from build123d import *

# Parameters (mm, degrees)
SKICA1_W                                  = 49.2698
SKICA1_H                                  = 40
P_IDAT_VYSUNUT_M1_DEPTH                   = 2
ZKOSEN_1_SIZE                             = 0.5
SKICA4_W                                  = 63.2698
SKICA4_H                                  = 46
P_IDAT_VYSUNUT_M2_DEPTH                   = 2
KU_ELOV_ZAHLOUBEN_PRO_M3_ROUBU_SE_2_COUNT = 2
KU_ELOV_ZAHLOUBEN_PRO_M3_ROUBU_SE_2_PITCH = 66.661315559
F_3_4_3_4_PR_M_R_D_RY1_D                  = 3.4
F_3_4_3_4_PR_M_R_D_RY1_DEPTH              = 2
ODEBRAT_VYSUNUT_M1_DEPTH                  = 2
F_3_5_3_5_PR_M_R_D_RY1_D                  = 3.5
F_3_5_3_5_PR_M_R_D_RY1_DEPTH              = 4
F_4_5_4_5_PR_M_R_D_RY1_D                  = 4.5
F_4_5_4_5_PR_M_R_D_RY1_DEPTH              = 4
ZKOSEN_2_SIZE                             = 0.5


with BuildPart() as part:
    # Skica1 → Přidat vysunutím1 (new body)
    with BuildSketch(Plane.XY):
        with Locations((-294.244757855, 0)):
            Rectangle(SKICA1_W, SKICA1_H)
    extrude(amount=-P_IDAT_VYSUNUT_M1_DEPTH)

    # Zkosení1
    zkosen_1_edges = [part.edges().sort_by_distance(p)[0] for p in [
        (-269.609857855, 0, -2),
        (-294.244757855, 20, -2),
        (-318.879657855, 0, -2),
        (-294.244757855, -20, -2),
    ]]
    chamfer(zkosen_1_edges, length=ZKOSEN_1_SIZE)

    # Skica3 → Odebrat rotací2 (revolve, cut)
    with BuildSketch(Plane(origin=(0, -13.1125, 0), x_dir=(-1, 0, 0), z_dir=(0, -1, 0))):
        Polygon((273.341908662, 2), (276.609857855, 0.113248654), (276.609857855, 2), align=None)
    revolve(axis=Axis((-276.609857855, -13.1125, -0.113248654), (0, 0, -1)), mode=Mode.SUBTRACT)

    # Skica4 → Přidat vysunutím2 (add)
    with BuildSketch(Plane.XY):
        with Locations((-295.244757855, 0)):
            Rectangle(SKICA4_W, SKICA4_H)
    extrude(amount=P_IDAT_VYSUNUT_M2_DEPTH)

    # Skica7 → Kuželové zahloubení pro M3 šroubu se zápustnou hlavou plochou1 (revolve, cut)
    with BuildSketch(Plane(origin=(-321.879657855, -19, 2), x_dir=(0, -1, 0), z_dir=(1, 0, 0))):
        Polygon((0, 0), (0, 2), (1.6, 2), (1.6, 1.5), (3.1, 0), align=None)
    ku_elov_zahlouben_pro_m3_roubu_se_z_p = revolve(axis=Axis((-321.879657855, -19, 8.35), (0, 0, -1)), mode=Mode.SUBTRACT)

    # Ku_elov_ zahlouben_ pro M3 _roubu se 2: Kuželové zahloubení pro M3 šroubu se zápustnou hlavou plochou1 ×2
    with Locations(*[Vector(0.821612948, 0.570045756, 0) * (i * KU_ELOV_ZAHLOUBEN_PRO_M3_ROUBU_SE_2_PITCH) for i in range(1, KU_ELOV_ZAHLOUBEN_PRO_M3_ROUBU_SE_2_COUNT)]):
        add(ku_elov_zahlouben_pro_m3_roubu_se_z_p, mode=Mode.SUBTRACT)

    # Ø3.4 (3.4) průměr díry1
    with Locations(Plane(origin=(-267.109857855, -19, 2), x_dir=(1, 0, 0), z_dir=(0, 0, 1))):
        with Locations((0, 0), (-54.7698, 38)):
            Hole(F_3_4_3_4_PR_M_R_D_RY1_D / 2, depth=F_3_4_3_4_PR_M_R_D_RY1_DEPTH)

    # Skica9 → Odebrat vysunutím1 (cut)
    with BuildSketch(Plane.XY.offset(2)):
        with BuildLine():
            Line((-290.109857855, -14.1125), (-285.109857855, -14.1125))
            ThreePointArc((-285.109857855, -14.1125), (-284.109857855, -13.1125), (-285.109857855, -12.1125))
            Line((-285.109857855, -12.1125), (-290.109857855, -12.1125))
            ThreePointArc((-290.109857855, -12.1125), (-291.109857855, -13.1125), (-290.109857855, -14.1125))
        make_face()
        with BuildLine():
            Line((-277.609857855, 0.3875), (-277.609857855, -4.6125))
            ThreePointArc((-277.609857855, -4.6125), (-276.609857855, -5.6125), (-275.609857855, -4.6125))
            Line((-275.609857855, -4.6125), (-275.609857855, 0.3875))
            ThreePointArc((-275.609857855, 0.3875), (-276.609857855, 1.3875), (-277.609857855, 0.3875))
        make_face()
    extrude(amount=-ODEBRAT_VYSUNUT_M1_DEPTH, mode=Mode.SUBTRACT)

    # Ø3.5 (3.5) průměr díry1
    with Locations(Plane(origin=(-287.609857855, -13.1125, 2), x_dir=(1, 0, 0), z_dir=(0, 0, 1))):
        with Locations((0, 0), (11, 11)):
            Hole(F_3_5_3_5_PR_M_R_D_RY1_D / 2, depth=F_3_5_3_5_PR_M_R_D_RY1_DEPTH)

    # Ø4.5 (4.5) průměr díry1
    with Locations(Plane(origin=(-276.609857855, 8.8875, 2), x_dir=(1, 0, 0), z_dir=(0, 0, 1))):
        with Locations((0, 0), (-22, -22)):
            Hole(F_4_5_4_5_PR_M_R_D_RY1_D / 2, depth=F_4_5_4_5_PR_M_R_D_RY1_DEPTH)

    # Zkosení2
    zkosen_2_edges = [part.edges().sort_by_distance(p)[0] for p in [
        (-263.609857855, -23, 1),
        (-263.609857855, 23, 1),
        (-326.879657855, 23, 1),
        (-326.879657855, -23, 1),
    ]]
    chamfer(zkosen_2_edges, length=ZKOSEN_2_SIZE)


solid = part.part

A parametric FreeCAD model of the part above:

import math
import FreeCAD as App
import Part
import Sketcher

V = App.Vector
Q = App.Units.Quantity


def edges_at(feature, points):
    """Names of the edges that pass closest to the given points."""
    edges = feature.Shape.Edges
    near = lambda p: min(range(len(edges)), key=lambda i: edges[i].distToShape(Part.Vertex(*p))[0])
    return sorted({f"Edge{near(p) + 1}" for p in points})

doc = App.newDocument("Part")
params = doc.addObject("Spreadsheet::Sheet", "Params")
for row, (alias, value) in enumerate([
    ("sketch1_height", "40 mm"),
    ("pad1_length", "2 mm"),
    ("chamfer_size", "0.5 mm"),
    ("groove_angle", "360 deg"),
    ("sketch3_height", "46 mm"),
    ("pad2_length", "2 mm"),
    ("sketch4_height", "2 mm"),
    ("sketch4_width", "3.1 mm"),
    ("sketch4_width2", "1.6 mm"),
    ("groove2_angle", "360 deg"),
    ("linearpattern_pitch", "66.661316 mm"),
    ("sketch5_diameter", "3.4 mm"),
    ("hole_diameter", "3.4 mm"),
    ("hole_depth", "2 mm"),
    ("sketch6_radius", "1 mm"),
    ("sketch6_width", "5 mm"),
    ("pocket1_length", "2 mm"),
    ("sketch7_diameter", "3.5 mm"),
    ("hole2_diameter", "3.5 mm"),
    ("hole2_depth", "4 mm"),
    ("sketch8_diameter", "4.5 mm"),
    ("hole3_diameter", "4.5 mm"),
    ("hole3_depth", "4 mm"),
    ("chamfer2_size", "0.5 mm"),
], start=1):
    params.set(f"A{row}", alias)
    params.set(f"B{row}", "=" + value)
    params.setAlias(f"B{row}", alias)

body = doc.addObject("PartDesign::Body", "Body")

# Sketch on XY plane
sketch1 = body.newObject("Sketcher::SketchObject", "Sketch")
sketch1.AttachmentSupport = (doc.getObject("XY_Plane"), [""])
sketch1.MapMode = "FlatFace"
sketch1.addGeometry([
    Part.LineSegment(V(-318.879658, 20, 0), V(-318.879658, -20, 0)),
    Part.LineSegment(V(-318.879658, -20, 0), V(-269.609858, -20, 0)),
    Part.LineSegment(V(-269.609858, -20, 0), V(-269.609858, 20, 0)),
    Part.LineSegment(V(-269.609858, 20, 0), V(-318.879658, 20, 0)),
], False)
sketch1.addConstraint([
    Sketcher.Constraint("Coincident", 0, 2, 1, 1),
    Sketcher.Constraint("Coincident", 1, 2, 2, 1),
    Sketcher.Constraint("Coincident", 2, 2, 3, 1),
    Sketcher.Constraint("Coincident", 3, 2, 0, 1),
    Sketcher.Constraint("Vertical", 0),
    Sketcher.Constraint("Horizontal", 1),
    Sketcher.Constraint("Vertical", 2),
    Sketcher.Constraint("Horizontal", 3),
    Sketcher.Constraint("DistanceY", 0, 2, 0, 1, Q("40 mm")),
    Sketcher.Constraint("DistanceY", 0, 2, -1, 1, Q("20 mm")),
    Sketcher.Constraint("DistanceX", 1, 1, 1, 2, Q("49.2698 mm")),
    Sketcher.Constraint("DistanceX", 0, 2, -1, 1, Q("318.879658 mm")),
])
sketch1.setExpression("Constraints[8]", "Params.sketch1_height")
pad1 = body.newObject("PartDesign::Pad", "Pad")
pad1.Profile = sketch1
pad1.setExpression("Length", "Params.pad1_length")
pad1.Reversed = True
doc.recompute()

chamfer = body.newObject("PartDesign::Chamfer", "Chamfer")
chamfer.Base = (pad1, edges_at(pad1, [
    (-269.61, 0, -2),
    (-294.245, 20, -2),
    (-318.88, 0, -2),
    (-294.245, -20, -2),
]))
chamfer.setExpression("Size", "Params.chamfer_size")

# Sketch on XZ plane
sketch2 = body.newObject("Sketcher::SketchObject", "Sketch001")
sketch2.AttachmentSupport = (doc.getObject("XZ_Plane"), [""])
sketch2.MapMode = "FlatFace"
sketch2.AttachmentOffset = App.Placement(V(0, 0, 13.1125), App.Rotation())
sketch2.addGeometry([
    Part.LineSegment(V(-273.341909, -2, 0), V(-276.609858, -0.113249, 0)),
    Part.LineSegment(V(-276.609858, -0.113249, 0), V(-276.609858, -2, 0)),
    Part.LineSegment(V(-276.609858, -2, 0), V(-273.341909, -2, 0)),
], False)
sketch2.addGeometry(Part.LineSegment(V(-276.609858, -0.113249, 0), V(-276.609858, -2, 0)), True)  # axis
sketch2.addConstraint([
    Sketcher.Constraint("Coincident", 0, 2, 1, 1),
    Sketcher.Constraint("Coincident", 1, 2, 2, 1),
    Sketcher.Constraint("Coincident", 2, 2, 0, 1),
    Sketcher.Constraint("Vertical", 1),
    Sketcher.Constraint("Horizontal", 2),
    Sketcher.Constraint("Vertical", 3),
    Sketcher.Constraint("Coincident", 3, 1, 0, 2),
    Sketcher.Constraint("Horizontal", 2, 2, 3, 2),
    Sketcher.Constraint("Angle", 0, Q("150 deg")),
    Sketcher.Constraint("DistanceY", 1, 2, -1, 1, Q("2 mm")),
    Sketcher.Constraint("DistanceX", 2, 1, 2, 2, Q("3.267949 mm")),
    Sketcher.Constraint("DistanceX", 2, 2, -1, 1, Q("273.341909 mm")),
])
groove = body.newObject("PartDesign::Groove", "Groove")
groove.Profile = sketch2
groove.ReferenceAxis = (sketch2, ["Axis0"])
groove.setExpression("Angle", "Params.groove_angle")

# Sketch on XY plane
sketch3 = body.newObject("Sketcher::SketchObject", "Sketch002")
sketch3.AttachmentSupport = (doc.getObject("XY_Plane"), [""])
sketch3.MapMode = "FlatFace"
sketch3.addGeometry([
    Part.LineSegment(V(-326.879658, 23, 0), V(-326.879658, -23, 0)),
    Part.LineSegment(V(-326.879658, -23, 0), V(-263.609858, -23, 0)),
    Part.LineSegment(V(-263.609858, -23, 0), V(-263.609858, 23, 0)),
    Part.LineSegment(V(-263.609858, 23, 0), V(-326.879658, 23, 0)),
], False)
sketch3.addConstraint([
    Sketcher.Constraint("Coincident", 0, 2, 1, 1),
    Sketcher.Constraint("Coincident", 1, 2, 2, 1),
    Sketcher.Constraint("Coincident", 2, 2, 3, 1),
    Sketcher.Constraint("Coincident", 3, 2, 0, 1),
    Sketcher.Constraint("Vertical", 0),
    Sketcher.Constraint("Horizontal", 1),
    Sketcher.Constraint("Vertical", 2),
    Sketcher.Constraint("Horizontal", 3),
    Sketcher.Constraint("DistanceY", 0, 2, 0, 1, Q("46 mm")),
    Sketcher.Constraint("DistanceY", 0, 2, -1, 1, Q("23 mm")),
    Sketcher.Constraint("DistanceX", 1, 1, 1, 2, Q("63.2698 mm")),
    Sketcher.Constraint("DistanceX", 0, 2, -1, 1, Q("326.879658 mm")),
])
sketch3.setExpression("Constraints[8]", "Params.sketch3_height")
pad2 = body.newObject("PartDesign::Pad", "Pad001")
pad2.Profile = sketch3
pad2.setExpression("Length", "Params.pad2_length")

# Sketch on YZ plane
sketch4 = body.newObject("Sketcher::SketchObject", "Sketch003")
sketch4.AttachmentSupport = (doc.getObject("YZ_Plane"), [""])
sketch4.MapMode = "FlatFace"
sketch4.AttachmentOffset = App.Placement(V(0, 0, -321.879658), App.Rotation())
sketch4.addGeometry([
    Part.LineSegment(V(-19, 0, 0), V(-19, 2, 0)),  # 0
    Part.LineSegment(V(-19, 2, 0), V(-22.1, 2, 0)),  # 1
    Part.LineSegment(V(-22.1, 2, 0), V(-20.6, 0.5, 0)),  # 2
    Part.LineSegment(V(-20.6, 0.5, 0), V(-20.6, 0, 0)),  # 3
    Part.LineSegment(V(-20.6, 0, 0), V(-19, 0, 0)),  # 4
], False)
sketch4.addGeometry(Part.LineSegment(V(-19, 2, 0), V(-19, 0, 0)), True)  # axis
sketch4.addConstraint([
    Sketcher.Constraint("Coincident", 0, 2, 1, 1),
    Sketcher.Constraint("Coincident", 1, 2, 2, 1),
    Sketcher.Constraint("Coincident", 2, 2, 3, 1),
    Sketcher.Constraint("Coincident", 3, 2, 4, 1),
    Sketcher.Constraint("Coincident", 4, 2, 0, 1),
    Sketcher.Constraint("Vertical", 0),
    Sketcher.Constraint("Horizontal", 1),
    Sketcher.Constraint("Vertical", 3),
    Sketcher.Constraint("Horizontal", 4),
    Sketcher.Constraint("Vertical", 5),
    Sketcher.Constraint("Coincident", 5, 1, 0, 2),
    Sketcher.Constraint("PointOnObject", 3, 2, -1),
    Sketcher.Constraint("PointOnObject", 5, 2, -1),
    Sketcher.Constraint("DistanceY", 0, 1, 0, 2, Q("2 mm")),
    Sketcher.Constraint("Angle", 2, Q("-45 deg")),
    Sketcher.Constraint("DistanceX", 1, 2, 1, 1, Q("3.1 mm")),
    Sketcher.Constraint("DistanceX", 4, 1, 4, 2, Q("1.6 mm")),
    Sketcher.Constraint("DistanceX", 0, 2, -1, 1, Q("19 mm")),
])
sketch4.setExpression("Constraints[13]", "Params.sketch4_height")
sketch4.setExpression("Constraints[15]", "Params.sketch4_width")
sketch4.setExpression("Constraints[16]", "Params.sketch4_width2")
groove2 = body.newObject("PartDesign::Groove", "Groove001")
groove2.Profile = sketch4
groove2.ReferenceAxis = (sketch4, ["Axis0"])
groove2.setExpression("Angle", "Params.groove2_angle")
doc.recompute()

datumline = body.newObject("PartDesign::Line", "DatumLine")
datumline.Placement = App.Placement(V(0, 0, 0), App.Rotation(V(0, 0, 1), V(0.821612948, 0.570045756, 0)))
linearpattern = body.newObject("PartDesign::LinearPattern", "LinearPattern")
linearpattern.Originals = [groove2]
linearpattern.Direction = (datumline, [""])
linearpattern.Mode = "offset"
linearpattern.setExpression("Offset", "Params.linearpattern_pitch")
linearpattern.Occurrences = 2
body.Tip = linearpattern

# Sketch on XY plane
sketch5 = body.newObject("Sketcher::SketchObject", "Sketch004")
sketch5.AttachmentSupport = (doc.getObject("XY_Plane"), [""])
sketch5.MapMode = "FlatFace"
sketch5.AttachmentOffset = App.Placement(V(0, 0, 2), App.Rotation())
sketch5.addGeometry([
    Part.Circle(V(-267.109858, -19, 0), V(0, 0, 1), 1.7),
    Part.Circle(V(-321.879658, 19, 0), V(0, 0, 1), 1.7),
], False)
sketch5.addConstraint([
    Sketcher.Constraint("Equal", 0, 1),
    Sketcher.Constraint("Diameter", 0, Q("3.4 mm")),
    Sketcher.Constraint("DistanceY", 0, 3, -1, 1, Q("19 mm")),
    Sketcher.Constraint("DistanceY", -1, 1, 1, 3, Q("19 mm")),
    Sketcher.Constraint("DistanceX", 1, 3, 0, 3, Q("54.7698 mm")),
    Sketcher.Constraint("DistanceX", 0, 3, -1, 1, Q("267.109858 mm")),
])
sketch5.setExpression("Constraints[1]", "Params.sketch5_diameter")
doc.recompute()
hole = body.newObject("PartDesign::Hole", "Hole")
hole.Profile = sketch5
hole.ThreadType = "None"
hole.setExpression("Diameter", "Params.hole_diameter")
hole.DepthType = "Dimension"
hole.setExpression("Depth", "Params.hole_depth")
hole.DrillPoint = "Flat"

# Sketch on XY plane
sketch6 = body.newObject("Sketcher::SketchObject", "Sketch005")
sketch6.AttachmentSupport = (doc.getObject("XY_Plane"), [""])
sketch6.MapMode = "FlatFace"
sketch6.AttachmentOffset = App.Placement(V(0, 0, 2), App.Rotation())
sketch6.addGeometry([
    Part.LineSegment(V(-290.109858, -14.1125, 0), V(-285.109858, -14.1125, 0)),  # 0
    Part.ArcOfCircle(Part.Circle(V(-285.109858, -13.1125, 0), V(0, 0, 1), 1), math.radians(-90), math.radians(90)),  # 1
    Part.LineSegment(V(-285.109858, -12.1125, 0), V(-290.109858, -12.1125, 0)),  # 2
    Part.ArcOfCircle(Part.Circle(V(-290.109858, -13.1125, 0), V(0, 0, 1), 1), math.radians(90), math.radians(270)),  # 3
    Part.LineSegment(V(-277.609858, 0.3875, 0), V(-277.609858, -4.6125, 0)),  # 4
    Part.ArcOfCircle(Part.Circle(V(-276.609858, -4.6125, 0), V(0, 0, 1), 1), math.radians(180), math.radians(360)),  # 5
    Part.LineSegment(V(-275.609858, -4.6125, 0), V(-275.609858, 0.3875, 0)),  # 6
    Part.ArcOfCircle(Part.Circle(V(-276.609858, 0.3875, 0), V(0, 0, 1), 1), math.radians(0), math.radians(180)),  # 7
], False)
sketch6.addConstraint([
    Sketcher.Constraint("Tangent", 0, 2, 1, 1),
    Sketcher.Constraint("Tangent", 1, 2, 2, 1),
    Sketcher.Constraint("Tangent", 2, 2, 3, 1),
    Sketcher.Constraint("Tangent", 3, 2, 0, 1),
    Sketcher.Constraint("Tangent", 4, 2, 5, 1),
    Sketcher.Constraint("Tangent", 5, 2, 6, 1),
    Sketcher.Constraint("Tangent", 6, 2, 7, 1),
    Sketcher.Constraint("Tangent", 7, 2, 4, 1),
    Sketcher.Constraint("Horizontal", 0),
    Sketcher.Constraint("Horizontal", 2),
    Sketcher.Constraint("Vertical", 4),
    Sketcher.Constraint("Vertical", 6),
    Sketcher.Constraint("Equal", 3, 5),
    Sketcher.Constraint("Equal", 2, 4),
    Sketcher.Constraint("Radius", 1, Q("1 mm")),
    Sketcher.Constraint("DistanceX", 0, 1, 0, 2, Q("5 mm")),
    Sketcher.Constraint("DistanceX", 1, 3, 5, 3, Q("8.5 mm")),
    Sketcher.Constraint("DistanceY", 1, 3, 5, 3, Q("8.5 mm")),
    Sketcher.Constraint("DistanceY", 1, 3, -1, 1, Q("13.1125 mm")),
    Sketcher.Constraint("DistanceX", 1, 3, -1, 1, Q("285.109858 mm")),
])
sketch6.setExpression("Constraints[14]", "Params.sketch6_radius")
sketch6.setExpression("Constraints[15]", "Params.sketch6_width")
pocket1 = body.newObject("PartDesign::Pocket", "Pocket")
pocket1.Profile = sketch6
pocket1.setExpression("Length", "Params.pocket1_length")

# Sketch on XY plane
sketch7 = body.newObject("Sketcher::SketchObject", "Sketch006")
sketch7.AttachmentSupport = (doc.getObject("XY_Plane"), [""])
sketch7.MapMode = "FlatFace"
sketch7.AttachmentOffset = App.Placement(V(0, 0, 2), App.Rotation())
sketch7.addGeometry([
    Part.Circle(V(-287.609858, -13.1125, 0), V(0, 0, 1), 1.75),
    Part.Circle(V(-276.609858, -2.1125, 0), V(0, 0, 1), 1.75),
], False)
sketch7.addConstraint([
    Sketcher.Constraint("Equal", 0, 1),
    Sketcher.Constraint("Diameter", 0, Q("3.5 mm")),
    Sketcher.Constraint("DistanceX", 0, 3, 1, 3, Q("11 mm")),
    Sketcher.Constraint("DistanceY", 0, 3, 1, 3, Q("11 mm")),
    Sketcher.Constraint("DistanceY", 0, 3, -1, 1, Q("13.1125 mm")),
    Sketcher.Constraint("DistanceX", 0, 3, -1, 1, Q("287.609858 mm")),
])
sketch7.setExpression("Constraints[1]", "Params.sketch7_diameter")
doc.recompute()
hole2 = body.newObject("PartDesign::Hole", "Hole001")
hole2.Profile = sketch7
hole2.ThreadType = "None"
hole2.setExpression("Diameter", "Params.hole2_diameter")
hole2.DepthType = "Dimension"
hole2.setExpression("Depth", "Params.hole2_depth")
hole2.DrillPoint = "Flat"

# Sketch on XY plane
sketch8 = body.newObject("Sketcher::SketchObject", "Sketch007")
sketch8.AttachmentSupport = (doc.getObject("XY_Plane"), [""])
sketch8.MapMode = "FlatFace"
sketch8.AttachmentOffset = App.Placement(V(0, 0, 2), App.Rotation())
sketch8.addGeometry([
    Part.Circle(V(-276.609858, 8.8875, 0), V(0, 0, 1), 2.25),
    Part.Circle(V(-298.609858, -13.1125, 0), V(0, 0, 1), 2.25),
], False)
sketch8.addConstraint([
    Sketcher.Constraint("Equal", 0, 1),
    Sketcher.Constraint("Diameter", 0, Q("4.5 mm")),
    Sketcher.Constraint("DistanceX", 1, 3, 0, 3, Q("22 mm")),
    Sketcher.Constraint("DistanceY", 1, 3, 0, 3, Q("22 mm")),
    Sketcher.Constraint("DistanceY", -1, 1, 0, 3, Q("8.8875 mm")),
    Sketcher.Constraint("DistanceX", 0, 3, -1, 1, Q("276.609858 mm")),
])
sketch8.setExpression("Constraints[1]", "Params.sketch8_diameter")
doc.recompute()
hole3 = body.newObject("PartDesign::Hole", "Hole002")
hole3.Profile = sketch8
hole3.ThreadType = "None"
hole3.setExpression("Diameter", "Params.hole3_diameter")
hole3.DepthType = "Dimension"
hole3.setExpression("Depth", "Params.hole3_depth")
hole3.DrillPoint = "Flat"
doc.recompute()

chamfer2 = body.newObject("PartDesign::Chamfer", "Chamfer001")
chamfer2.Base = (hole3, edges_at(hole3, [
    (-263.61, -23, 1),
    (-263.61, 23, 1),
    (-326.88, 23, 1),
    (-326.88, -23, 1),
]))
chamfer2.setExpression("Size", "Params.chamfer2_size")

doc.recompute()
